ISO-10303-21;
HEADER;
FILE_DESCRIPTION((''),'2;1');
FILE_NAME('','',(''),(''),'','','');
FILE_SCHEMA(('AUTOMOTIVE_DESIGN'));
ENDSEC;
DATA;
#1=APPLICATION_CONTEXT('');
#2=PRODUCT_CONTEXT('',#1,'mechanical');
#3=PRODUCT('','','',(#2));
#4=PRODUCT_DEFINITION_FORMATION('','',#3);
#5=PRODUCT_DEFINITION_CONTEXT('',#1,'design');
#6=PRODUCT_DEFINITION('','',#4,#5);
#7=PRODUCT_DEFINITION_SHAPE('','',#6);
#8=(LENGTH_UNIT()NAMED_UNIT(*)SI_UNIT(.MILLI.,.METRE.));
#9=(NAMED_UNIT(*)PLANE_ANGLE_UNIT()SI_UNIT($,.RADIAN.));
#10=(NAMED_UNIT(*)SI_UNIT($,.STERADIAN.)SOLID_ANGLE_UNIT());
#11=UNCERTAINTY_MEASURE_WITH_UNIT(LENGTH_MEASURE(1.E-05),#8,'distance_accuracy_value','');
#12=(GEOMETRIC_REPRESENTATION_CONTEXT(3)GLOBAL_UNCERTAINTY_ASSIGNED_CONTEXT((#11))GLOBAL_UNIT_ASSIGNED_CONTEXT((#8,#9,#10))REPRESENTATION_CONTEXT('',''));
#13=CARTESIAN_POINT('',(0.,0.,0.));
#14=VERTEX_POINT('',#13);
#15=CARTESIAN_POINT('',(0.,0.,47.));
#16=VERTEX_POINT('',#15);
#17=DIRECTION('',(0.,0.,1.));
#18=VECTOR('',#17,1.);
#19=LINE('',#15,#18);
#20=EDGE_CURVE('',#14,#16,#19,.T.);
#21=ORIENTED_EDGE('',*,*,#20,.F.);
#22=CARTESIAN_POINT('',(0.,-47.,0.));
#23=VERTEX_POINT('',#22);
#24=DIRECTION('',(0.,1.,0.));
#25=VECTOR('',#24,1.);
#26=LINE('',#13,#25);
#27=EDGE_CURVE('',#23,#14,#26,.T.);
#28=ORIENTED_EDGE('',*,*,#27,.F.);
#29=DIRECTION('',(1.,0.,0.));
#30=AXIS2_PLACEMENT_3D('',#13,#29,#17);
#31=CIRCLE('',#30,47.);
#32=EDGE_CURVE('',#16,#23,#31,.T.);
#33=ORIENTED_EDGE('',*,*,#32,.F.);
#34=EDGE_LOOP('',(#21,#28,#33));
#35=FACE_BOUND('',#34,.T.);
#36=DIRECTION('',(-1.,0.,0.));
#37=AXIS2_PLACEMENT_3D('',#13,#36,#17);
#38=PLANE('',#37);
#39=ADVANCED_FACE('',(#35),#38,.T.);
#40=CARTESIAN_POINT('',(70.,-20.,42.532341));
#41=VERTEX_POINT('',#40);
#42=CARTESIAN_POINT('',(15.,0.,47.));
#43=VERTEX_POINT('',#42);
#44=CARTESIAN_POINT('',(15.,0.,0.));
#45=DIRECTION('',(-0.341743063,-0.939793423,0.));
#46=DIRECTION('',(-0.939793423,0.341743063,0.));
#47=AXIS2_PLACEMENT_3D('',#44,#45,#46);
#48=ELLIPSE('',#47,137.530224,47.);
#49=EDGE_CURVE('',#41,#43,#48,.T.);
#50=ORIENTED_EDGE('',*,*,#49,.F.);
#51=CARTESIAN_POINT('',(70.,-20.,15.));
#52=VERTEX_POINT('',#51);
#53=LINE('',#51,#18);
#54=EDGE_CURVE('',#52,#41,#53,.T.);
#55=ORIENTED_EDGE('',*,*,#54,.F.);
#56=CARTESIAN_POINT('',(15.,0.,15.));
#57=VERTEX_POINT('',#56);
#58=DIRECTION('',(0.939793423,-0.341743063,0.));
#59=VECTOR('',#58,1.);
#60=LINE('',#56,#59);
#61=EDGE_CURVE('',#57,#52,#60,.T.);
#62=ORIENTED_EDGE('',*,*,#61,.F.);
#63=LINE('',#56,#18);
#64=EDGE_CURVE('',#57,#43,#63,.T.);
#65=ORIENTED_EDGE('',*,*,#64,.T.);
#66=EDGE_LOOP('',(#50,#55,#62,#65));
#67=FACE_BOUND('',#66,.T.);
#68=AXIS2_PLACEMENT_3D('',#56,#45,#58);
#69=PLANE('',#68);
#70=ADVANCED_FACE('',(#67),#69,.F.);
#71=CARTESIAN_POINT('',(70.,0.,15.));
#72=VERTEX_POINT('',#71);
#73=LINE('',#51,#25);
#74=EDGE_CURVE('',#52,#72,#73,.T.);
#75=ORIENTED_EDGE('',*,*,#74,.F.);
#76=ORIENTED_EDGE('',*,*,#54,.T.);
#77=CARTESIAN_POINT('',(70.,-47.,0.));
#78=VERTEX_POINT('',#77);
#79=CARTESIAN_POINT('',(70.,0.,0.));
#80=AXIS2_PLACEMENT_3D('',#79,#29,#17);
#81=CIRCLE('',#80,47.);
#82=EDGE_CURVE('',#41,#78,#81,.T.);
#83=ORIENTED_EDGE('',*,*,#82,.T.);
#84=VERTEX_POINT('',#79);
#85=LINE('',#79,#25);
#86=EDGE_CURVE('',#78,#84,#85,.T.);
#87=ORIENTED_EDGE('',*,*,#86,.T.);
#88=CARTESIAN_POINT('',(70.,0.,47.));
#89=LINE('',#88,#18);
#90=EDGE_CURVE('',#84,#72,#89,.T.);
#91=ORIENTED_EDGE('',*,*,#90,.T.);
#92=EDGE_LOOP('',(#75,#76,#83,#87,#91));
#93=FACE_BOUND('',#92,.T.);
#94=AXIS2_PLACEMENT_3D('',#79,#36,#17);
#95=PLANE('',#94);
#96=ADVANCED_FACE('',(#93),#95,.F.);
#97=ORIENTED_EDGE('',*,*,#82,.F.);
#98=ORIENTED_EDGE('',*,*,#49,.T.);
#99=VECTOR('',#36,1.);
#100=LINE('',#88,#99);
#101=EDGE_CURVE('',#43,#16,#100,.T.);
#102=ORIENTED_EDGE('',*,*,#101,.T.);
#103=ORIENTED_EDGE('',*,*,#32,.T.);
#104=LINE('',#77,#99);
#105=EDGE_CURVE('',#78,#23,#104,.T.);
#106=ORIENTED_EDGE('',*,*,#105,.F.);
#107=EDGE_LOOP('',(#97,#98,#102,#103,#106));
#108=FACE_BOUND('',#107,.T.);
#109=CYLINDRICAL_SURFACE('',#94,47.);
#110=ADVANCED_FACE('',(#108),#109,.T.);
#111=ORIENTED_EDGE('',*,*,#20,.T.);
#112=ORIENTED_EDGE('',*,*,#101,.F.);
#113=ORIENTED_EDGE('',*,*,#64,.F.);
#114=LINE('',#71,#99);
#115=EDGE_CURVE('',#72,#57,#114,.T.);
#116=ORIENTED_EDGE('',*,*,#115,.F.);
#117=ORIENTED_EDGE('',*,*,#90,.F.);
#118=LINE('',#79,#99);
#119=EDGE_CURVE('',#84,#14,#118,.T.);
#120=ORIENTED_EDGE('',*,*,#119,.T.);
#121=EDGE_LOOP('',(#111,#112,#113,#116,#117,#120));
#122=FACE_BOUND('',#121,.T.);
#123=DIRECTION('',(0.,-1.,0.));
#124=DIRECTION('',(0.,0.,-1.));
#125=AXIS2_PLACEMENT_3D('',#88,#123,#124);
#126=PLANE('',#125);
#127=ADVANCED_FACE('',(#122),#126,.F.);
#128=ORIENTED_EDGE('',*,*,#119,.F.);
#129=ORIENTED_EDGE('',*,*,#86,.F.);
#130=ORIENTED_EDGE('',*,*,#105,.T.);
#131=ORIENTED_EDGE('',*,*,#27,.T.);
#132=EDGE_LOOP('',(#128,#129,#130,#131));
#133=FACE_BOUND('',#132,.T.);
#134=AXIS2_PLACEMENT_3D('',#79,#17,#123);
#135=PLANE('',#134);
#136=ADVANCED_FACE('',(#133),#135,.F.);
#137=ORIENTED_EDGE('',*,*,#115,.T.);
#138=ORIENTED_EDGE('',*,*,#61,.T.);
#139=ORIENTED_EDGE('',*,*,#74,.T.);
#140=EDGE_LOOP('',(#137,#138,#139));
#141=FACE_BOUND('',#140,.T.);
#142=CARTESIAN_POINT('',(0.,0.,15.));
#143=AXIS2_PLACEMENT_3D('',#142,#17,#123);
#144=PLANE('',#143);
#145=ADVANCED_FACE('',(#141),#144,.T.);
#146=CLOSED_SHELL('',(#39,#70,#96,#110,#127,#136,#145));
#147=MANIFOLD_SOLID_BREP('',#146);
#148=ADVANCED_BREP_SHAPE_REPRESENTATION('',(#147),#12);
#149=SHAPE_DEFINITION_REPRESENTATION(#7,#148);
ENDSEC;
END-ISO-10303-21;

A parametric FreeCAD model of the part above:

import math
import FreeCAD as App
import Part
import Sketcher

V = App.Vector
Q = App.Units.Quantity

doc = App.newDocument("Part")
body = doc.addObject("PartDesign::Body", "Body")

# Sketch on YZ plane
sketch1 = body.newObject("Sketcher::SketchObject", "Sketch")
sketch1.AttachmentSupport = (doc.getObject("YZ_Plane"), [""])
sketch1.MapMode = "FlatFace"
sketch1.addGeometry([
    Part.LineSegment(V(0, 0, 0), V(0, 47, 0)),
    Part.ArcOfCircle(Part.Circle(V(0, 0, 0), V(0, 0, 1), 47), math.radians(90), math.radians(180)),
    Part.LineSegment(V(-47, 0, 0), V(0, 0, 0)),
], False)
sketch1.addConstraint([
    Sketcher.Constraint("Coincident", 0, 2, 1, 1),
    Sketcher.Constraint("Coincident", 1, 2, 2, 1),
    Sketcher.Constraint("Coincident", 2, 2, 0, 1),
    Sketcher.Constraint("Vertical", 0),
    Sketcher.Constraint("Horizontal", 2),
    Sketcher.Constraint("Coincident", 1, 3, -1, 1),
    Sketcher.Constraint("Coincident", 2, 2, -1, 1),
    Sketcher.Constraint("Radius", 1, Q("47 mm")),
])
pad1 = body.newObject("PartDesign::Pad", "Pad")
pad1.Profile = sketch1
pad1.Length = 70

# Sketch on XY plane
sketch2 = body.newObject("Sketcher::SketchObject", "Sketch001")
sketch2.AttachmentSupport = (doc.getObject("XY_Plane"), [""])
sketch2.MapMode = "FlatFace"
sketch2.AttachmentOffset = App.Placement(V(0, 0, 47), App.Rotation())
sketch2.addGeometry([
    Part.LineSegment(V(70, -20, 0), V(15, 0, 0)),
    Part.LineSegment(V(15, 0, 0), V(70, 0, 0)),
    Part.LineSegment(V(70, 0, 0), V(70, -20, 0)),
], False)
sketch2.addConstraint([
    Sketcher.Constraint("Coincident", 0, 2, 1, 1),
    Sketcher.Constraint("Coincident", 1, 2, 2, 1),
    Sketcher.Constraint("Coincident", 2, 2, 0, 1),
    Sketcher.Constraint("Horizontal", 1),
    Sketcher.Constraint("Vertical", 2),
    Sketcher.Constraint("PointOnObject", 0, 2, -1),
    Sketcher.Constraint("DistanceX", 1, 1, 1, 2, Q("55 mm")),
    Sketcher.Constraint("DistanceY", 2, 2, 2, 1, Q("20 mm")),
    Sketcher.Constraint("DistanceX", -1, 1, 0, 2, Q("15 mm")),
])
pocket1 = body.newObject("PartDesign::Pocket", "Pocket")
pocket1.Profile = sketch2
pocket1.Length = 32

doc.recompute()
